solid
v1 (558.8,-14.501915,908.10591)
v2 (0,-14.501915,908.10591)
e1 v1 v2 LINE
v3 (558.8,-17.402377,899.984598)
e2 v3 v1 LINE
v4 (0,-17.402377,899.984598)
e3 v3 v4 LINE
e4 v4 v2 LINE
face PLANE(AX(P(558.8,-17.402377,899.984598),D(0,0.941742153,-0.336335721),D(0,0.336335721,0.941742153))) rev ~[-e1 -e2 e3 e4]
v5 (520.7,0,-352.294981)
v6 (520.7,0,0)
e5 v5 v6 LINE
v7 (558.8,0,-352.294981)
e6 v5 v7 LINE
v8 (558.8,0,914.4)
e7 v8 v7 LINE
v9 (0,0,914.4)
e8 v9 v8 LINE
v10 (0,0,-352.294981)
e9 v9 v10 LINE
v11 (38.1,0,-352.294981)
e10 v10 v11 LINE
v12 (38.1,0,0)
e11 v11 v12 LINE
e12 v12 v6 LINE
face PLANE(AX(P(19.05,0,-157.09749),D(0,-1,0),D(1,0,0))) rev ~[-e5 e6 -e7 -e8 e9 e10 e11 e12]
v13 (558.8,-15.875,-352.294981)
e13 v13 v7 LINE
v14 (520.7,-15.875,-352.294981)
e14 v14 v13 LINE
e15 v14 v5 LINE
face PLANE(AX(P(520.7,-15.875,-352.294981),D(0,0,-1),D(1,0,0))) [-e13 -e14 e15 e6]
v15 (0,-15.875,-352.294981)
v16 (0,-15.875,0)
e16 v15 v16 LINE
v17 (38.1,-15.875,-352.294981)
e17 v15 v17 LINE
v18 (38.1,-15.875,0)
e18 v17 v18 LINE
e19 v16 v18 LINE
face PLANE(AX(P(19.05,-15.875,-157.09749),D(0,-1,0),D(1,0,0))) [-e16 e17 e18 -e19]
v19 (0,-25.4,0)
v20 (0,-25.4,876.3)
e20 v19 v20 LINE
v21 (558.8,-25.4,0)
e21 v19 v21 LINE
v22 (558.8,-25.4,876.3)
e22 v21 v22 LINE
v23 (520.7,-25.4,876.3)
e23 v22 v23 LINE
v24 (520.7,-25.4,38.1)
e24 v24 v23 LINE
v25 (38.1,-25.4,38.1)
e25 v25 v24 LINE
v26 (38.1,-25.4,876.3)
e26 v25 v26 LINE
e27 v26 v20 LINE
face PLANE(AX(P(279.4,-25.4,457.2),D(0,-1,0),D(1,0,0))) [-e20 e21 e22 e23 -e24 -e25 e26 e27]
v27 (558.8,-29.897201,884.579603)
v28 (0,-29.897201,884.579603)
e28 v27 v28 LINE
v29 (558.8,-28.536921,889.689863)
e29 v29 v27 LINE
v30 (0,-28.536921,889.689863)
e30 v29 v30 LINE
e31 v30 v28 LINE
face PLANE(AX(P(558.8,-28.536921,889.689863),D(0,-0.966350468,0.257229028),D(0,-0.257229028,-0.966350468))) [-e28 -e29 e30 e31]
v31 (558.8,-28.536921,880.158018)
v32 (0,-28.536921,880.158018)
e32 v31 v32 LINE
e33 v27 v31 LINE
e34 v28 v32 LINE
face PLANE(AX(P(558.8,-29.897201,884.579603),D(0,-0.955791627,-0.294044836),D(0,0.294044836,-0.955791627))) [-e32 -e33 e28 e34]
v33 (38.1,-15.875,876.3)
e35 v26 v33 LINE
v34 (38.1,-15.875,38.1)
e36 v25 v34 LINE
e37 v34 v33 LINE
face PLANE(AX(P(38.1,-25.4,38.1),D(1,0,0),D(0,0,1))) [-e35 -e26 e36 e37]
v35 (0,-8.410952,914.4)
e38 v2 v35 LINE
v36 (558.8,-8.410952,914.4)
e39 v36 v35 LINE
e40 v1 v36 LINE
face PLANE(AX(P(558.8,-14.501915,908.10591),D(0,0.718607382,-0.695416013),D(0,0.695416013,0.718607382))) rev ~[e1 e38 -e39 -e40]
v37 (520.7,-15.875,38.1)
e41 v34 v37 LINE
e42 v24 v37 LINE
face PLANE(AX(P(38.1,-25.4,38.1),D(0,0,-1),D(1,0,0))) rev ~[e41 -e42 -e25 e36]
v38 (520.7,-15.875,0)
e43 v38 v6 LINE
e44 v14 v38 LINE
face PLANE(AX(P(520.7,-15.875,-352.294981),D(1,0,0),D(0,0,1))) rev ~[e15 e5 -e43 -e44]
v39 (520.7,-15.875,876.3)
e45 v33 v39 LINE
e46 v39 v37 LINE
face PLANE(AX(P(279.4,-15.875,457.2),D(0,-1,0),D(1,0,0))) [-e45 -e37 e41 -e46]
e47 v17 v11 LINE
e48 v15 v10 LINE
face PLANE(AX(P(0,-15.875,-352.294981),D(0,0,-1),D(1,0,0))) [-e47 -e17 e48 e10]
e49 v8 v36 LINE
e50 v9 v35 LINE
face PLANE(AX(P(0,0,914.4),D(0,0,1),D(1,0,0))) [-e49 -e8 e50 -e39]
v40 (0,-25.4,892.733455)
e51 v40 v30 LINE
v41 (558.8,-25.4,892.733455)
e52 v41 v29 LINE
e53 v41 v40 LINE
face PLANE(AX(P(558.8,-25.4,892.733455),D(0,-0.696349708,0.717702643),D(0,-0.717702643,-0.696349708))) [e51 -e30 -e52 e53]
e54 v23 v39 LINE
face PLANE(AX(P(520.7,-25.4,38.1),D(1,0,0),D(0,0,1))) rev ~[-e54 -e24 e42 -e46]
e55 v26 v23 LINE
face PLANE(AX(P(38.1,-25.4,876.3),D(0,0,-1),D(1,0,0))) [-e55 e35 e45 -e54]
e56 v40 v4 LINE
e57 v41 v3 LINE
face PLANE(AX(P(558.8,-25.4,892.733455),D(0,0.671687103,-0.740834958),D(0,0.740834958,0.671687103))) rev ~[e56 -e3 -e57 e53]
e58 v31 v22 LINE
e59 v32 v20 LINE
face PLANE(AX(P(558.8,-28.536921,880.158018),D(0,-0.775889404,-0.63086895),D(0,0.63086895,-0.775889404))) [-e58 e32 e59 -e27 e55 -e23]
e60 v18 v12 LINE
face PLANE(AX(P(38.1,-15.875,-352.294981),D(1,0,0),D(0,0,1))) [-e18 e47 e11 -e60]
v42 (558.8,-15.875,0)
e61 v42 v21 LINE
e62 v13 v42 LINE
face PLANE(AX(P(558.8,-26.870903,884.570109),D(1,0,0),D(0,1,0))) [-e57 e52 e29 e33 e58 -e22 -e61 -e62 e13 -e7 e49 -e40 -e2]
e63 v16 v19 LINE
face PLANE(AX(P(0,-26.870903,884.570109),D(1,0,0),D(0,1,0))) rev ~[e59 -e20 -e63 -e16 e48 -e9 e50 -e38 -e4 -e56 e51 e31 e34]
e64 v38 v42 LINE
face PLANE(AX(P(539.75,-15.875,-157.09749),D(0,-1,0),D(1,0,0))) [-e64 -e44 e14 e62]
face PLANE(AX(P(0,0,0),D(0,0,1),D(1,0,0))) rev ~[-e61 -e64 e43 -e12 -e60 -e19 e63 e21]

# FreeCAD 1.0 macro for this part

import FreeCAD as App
import Part
import Sketcher
Q = App.Units.Quantity


def add_polygon(sketch, points):
    """Adds a closed chain of lines whose ends are joined by coincident constraints."""
    first, n = sketch.GeometryCount, len(points)
    for a, b in zip(points, points[1:] + points[:1]):
        sketch.addGeometry(Part.LineSegment(App.Vector(*a, 0), App.Vector(*b, 0)), False)
    for i in range(n):
        sketch.addConstraint(Sketcher.Constraint("Coincident", first + i, 2, first + (i + 1) % n, 1))

doc = App.newDocument("Part")
body = doc.addObject("PartDesign::Body", "Body")

# Sketch on XZ plane
sketch1 = body.newObject("Sketcher::SketchObject", "Sketch")
sketch1.AttachmentSupport = (doc.getObject("XZ_Plane"), [""])
sketch1.MapMode = "FlatFace"
add_polygon(sketch1, [(0, 914), (0, 0), (559, 0), (559, 914)])  # lines 0-3
sketch1.addConstraint(Sketcher.Constraint("Vertical", 0))
sketch1.addConstraint(Sketcher.Constraint("Horizontal", 1))
sketch1.addConstraint(Sketcher.Constraint("Vertical", 2))
sketch1.addConstraint(Sketcher.Constraint("Horizontal", 3))
sketch1.addConstraint(Sketcher.Constraint("Coincident", 0, 2, -1, 1))
sketch1.addConstraint(Sketcher.Constraint("DistanceX", 1, 1, 1, 2, Q("22 in")))
sketch1.addConstraint(Sketcher.Constraint("DistanceY", 0, 2, 0, 1, Q("36 in")))
pad1 = body.newObject("PartDesign::Pad", "Pad")
pad1.Profile = sketch1
pad1.Length = Q("1 in")

# Sketch on XZ plane
sketch2 = body.newObject("Sketcher::SketchObject", "Sketch001")
sketch2.AttachmentSupport = (doc.getObject("XZ_Plane"), [""])
sketch2.MapMode = "FlatFace"
sketch2.AttachmentOffset = App.Placement(App.Vector(0, 0, 1 * 25.4), App.Rotation())
add_polygon(sketch2, [(38, 876), (38, 38), (521, 38), (521, 876)])  # lines 0-3
sketch2.addConstraint(Sketcher.Constraint("Vertical", 0))
sketch2.addConstraint(Sketcher.Constraint("Horizontal", 1))
sketch2.addConstraint(Sketcher.Constraint("Vertical", 2))
sketch2.addConstraint(Sketcher.Constraint("Horizontal", 3))
sketch2.addConstraint(Sketcher.Constraint("DistanceX", 1, 1, 1, 2, Q("19 in")))
sketch2.addConstraint(Sketcher.Constraint("DistanceY", 0, 2, 0, 1, Q("33 in")))
sketch2.addConstraint(Sketcher.Constraint("DistanceX", -1, 1, 0, 2, Q("1.5 in")))
sketch2.addConstraint(Sketcher.Constraint("DistanceY", -1, 1, 0, 2, Q("1.5 in")))
pocket1 = body.newObject("PartDesign::Pocket", "Pocket")
pocket1.Profile = sketch2
pocket1.Length = Q("0.375 in")

# Sketch on XZ plane
sketch3 = body.newObject("Sketcher::SketchObject", "Sketch002")
sketch3.AttachmentSupport = (doc.getObject("XZ_Plane"), [""])
sketch3.MapMode = "FlatFace"
sketch3.AttachmentOffset = App.Placement(App.Vector(0, 0, 0.625 * 25.4), App.Rotation())
add_polygon(sketch3, [(0, 38), (0, -352), (38, -352), (38, 38)])  # lines 0-3
add_polygon(sketch3, [(521, 38), (521, -352), (559, -352), (559, 38)])  # lines 4-7
sketch3.addConstraint(Sketcher.Constraint("Vertical", 0))
sketch3.addConstraint(Sketcher.Constraint("Horizontal", 1))
sketch3.addConstraint(Sketcher.Constraint("Vertical", 2))
sketch3.addConstraint(Sketcher.Constraint("Horizontal", 3))
sketch3.addConstraint(Sketcher.Constraint("Vertical", 4))
sketch3.addConstraint(Sketcher.Constraint("Horizontal", 5))
sketch3.addConstraint(Sketcher.Constraint("Vertical", 6))
sketch3.addConstraint(Sketcher.Constraint("Horizontal", 7))
sketch3.addConstraint(Sketcher.Constraint("PointOnObject", 0, 2, -2))
sketch3.addConstraint(Sketcher.Constraint("Horizontal", 1, 2, 4, 2))
sketch3.addConstraint(Sketcher.Constraint("Horizontal", 3, 2, 6, 2))
sketch3.addConstraint(Sketcher.Constraint("Equal", 3, 5))
sketch3.addConstraint(Sketcher.Constraint("DistanceX", 1, 1, 1, 2, Q("1.5 in")))
sketch3.addConstraint(Sketcher.Constraint("DistanceX", -1, 1, 5, 2, Q("22 in")))
sketch3.addConstraint(Sketcher.Constraint("DistanceY", -1, 1, 2, 2, Q("1.5 in")))
sketch3.addConstraint(Sketcher.Constraint("DistanceY", 0, 2, 0, 1, 390.394981))
pad2 = body.newObject("PartDesign::Pad", "Pad001")
pad2.Profile = sketch3
pad2.Length = Q("0.625 in")
pad2.Reversed = True

# Sketch on YZ plane
sketch4 = body.newObject("Sketcher::SketchObject", "Sketch003")
sketch4.AttachmentSupport = (doc.getObject("YZ_Plane"), [""])
sketch4.MapMode = "FlatFace"
sketch4.AttachmentOffset = App.Placement(App.Vector(0, 0, 22 * 25.4), App.Rotation())
add_polygon(sketch4, [(-15, 908), (-8, 914), (-25, 914), (-25, 893), (-17, 900)])  # lines 0-4
sketch4.addConstraint(Sketcher.Constraint("Horizontal", 1))
sketch4.addConstraint(Sketcher.Constraint("Vertical", 2))
sketch4.addConstraint(Sketcher.Constraint("DistanceY", -1, 1, 0, 2, Q("36 in")))
sketch4.addConstraint(Sketcher.Constraint("DistanceX", 1, 2, -1, 1, Q("1 in")))
sketch4.addConstraint(Sketcher.Constraint("DistanceY", -1, 1, 3, 2, 899.984598))
sketch4.addConstraint(Sketcher.Constraint("Distance", 4, 8.623711))
sketch4.addConstraint(Sketcher.Constraint("DistanceX", 1, 2, 1, 1, 16.989048))
sketch4.addConstraint(Sketcher.Constraint("DistanceY", 2, 2, 2, 1, 21.666545))
sketch4.addConstraint(Sketcher.Constraint("DistanceY", -1, 1, 4, 2, 908.10591))
sketch4.addConstraint(Sketcher.Constraint("Distance", 0, 8.758733))
pocket2 = body.newObject("PartDesign::Pocket", "Pocket001")
pocket2.Profile = sketch4
pocket2.Type = "ThroughAll"

# Sketch on YZ plane
sketch5 = body.newObject("Sketcher::SketchObject", "Sketch004")
sketch5.AttachmentSupport = (doc.getObject("YZ_Plane"), [""])
sketch5.MapMode = "FlatFace"
sketch5.AttachmentOffset = App.Placement(App.Vector(0, 0, 22 * 25.4), App.Rotation())
add_polygon(sketch5, [(-25.4, 876.3), (-25.4, 892.7), (-28.5, 889.7), (-29.9, 884.6), (-28.5, 880.2)])  # lines 0-4
sketch5.addConstraint(Sketcher.Constraint("Vertical", 0))
sketch5.addConstraint(Sketcher.Constraint("Vertical", 1, 2, 3, 2))
sketch5.addConstraint(Sketcher.Constraint("DistanceX", 0, 2, -1, 1, Q("1 in")))
sketch5.addConstraint(Sketcher.Constraint("DistanceY", -1, 1, 4, 2, Q("34.5 in")))
sketch5.addConstraint(Sketcher.Constraint("DistanceX", 2, 2, -1, 1, 29.897201))
sketch5.addConstraint(Sketcher.Constraint("Distance", 1, 4.370781))
sketch5.addConstraint(Sketcher.Constraint("Distance", 4, 4.972381))
sketch5.addConstraint(Sketcher.Constraint("DistanceY", 0, 1, 0, 2, 16.433455))
sketch5.addConstraint(Sketcher.Constraint("DistanceX", 1, 2, -1, 1, 28.536921))
sketch5.addConstraint(Sketcher.Constraint("DistanceY", 2, 2, 1, 2, 5.11026))
pad3 = body.newObject("PartDesign::Pad", "Pad002")
pad3.Profile = sketch5
pad3.Length = Q("22 in")
pad3.Reversed = True

doc.recompute()
